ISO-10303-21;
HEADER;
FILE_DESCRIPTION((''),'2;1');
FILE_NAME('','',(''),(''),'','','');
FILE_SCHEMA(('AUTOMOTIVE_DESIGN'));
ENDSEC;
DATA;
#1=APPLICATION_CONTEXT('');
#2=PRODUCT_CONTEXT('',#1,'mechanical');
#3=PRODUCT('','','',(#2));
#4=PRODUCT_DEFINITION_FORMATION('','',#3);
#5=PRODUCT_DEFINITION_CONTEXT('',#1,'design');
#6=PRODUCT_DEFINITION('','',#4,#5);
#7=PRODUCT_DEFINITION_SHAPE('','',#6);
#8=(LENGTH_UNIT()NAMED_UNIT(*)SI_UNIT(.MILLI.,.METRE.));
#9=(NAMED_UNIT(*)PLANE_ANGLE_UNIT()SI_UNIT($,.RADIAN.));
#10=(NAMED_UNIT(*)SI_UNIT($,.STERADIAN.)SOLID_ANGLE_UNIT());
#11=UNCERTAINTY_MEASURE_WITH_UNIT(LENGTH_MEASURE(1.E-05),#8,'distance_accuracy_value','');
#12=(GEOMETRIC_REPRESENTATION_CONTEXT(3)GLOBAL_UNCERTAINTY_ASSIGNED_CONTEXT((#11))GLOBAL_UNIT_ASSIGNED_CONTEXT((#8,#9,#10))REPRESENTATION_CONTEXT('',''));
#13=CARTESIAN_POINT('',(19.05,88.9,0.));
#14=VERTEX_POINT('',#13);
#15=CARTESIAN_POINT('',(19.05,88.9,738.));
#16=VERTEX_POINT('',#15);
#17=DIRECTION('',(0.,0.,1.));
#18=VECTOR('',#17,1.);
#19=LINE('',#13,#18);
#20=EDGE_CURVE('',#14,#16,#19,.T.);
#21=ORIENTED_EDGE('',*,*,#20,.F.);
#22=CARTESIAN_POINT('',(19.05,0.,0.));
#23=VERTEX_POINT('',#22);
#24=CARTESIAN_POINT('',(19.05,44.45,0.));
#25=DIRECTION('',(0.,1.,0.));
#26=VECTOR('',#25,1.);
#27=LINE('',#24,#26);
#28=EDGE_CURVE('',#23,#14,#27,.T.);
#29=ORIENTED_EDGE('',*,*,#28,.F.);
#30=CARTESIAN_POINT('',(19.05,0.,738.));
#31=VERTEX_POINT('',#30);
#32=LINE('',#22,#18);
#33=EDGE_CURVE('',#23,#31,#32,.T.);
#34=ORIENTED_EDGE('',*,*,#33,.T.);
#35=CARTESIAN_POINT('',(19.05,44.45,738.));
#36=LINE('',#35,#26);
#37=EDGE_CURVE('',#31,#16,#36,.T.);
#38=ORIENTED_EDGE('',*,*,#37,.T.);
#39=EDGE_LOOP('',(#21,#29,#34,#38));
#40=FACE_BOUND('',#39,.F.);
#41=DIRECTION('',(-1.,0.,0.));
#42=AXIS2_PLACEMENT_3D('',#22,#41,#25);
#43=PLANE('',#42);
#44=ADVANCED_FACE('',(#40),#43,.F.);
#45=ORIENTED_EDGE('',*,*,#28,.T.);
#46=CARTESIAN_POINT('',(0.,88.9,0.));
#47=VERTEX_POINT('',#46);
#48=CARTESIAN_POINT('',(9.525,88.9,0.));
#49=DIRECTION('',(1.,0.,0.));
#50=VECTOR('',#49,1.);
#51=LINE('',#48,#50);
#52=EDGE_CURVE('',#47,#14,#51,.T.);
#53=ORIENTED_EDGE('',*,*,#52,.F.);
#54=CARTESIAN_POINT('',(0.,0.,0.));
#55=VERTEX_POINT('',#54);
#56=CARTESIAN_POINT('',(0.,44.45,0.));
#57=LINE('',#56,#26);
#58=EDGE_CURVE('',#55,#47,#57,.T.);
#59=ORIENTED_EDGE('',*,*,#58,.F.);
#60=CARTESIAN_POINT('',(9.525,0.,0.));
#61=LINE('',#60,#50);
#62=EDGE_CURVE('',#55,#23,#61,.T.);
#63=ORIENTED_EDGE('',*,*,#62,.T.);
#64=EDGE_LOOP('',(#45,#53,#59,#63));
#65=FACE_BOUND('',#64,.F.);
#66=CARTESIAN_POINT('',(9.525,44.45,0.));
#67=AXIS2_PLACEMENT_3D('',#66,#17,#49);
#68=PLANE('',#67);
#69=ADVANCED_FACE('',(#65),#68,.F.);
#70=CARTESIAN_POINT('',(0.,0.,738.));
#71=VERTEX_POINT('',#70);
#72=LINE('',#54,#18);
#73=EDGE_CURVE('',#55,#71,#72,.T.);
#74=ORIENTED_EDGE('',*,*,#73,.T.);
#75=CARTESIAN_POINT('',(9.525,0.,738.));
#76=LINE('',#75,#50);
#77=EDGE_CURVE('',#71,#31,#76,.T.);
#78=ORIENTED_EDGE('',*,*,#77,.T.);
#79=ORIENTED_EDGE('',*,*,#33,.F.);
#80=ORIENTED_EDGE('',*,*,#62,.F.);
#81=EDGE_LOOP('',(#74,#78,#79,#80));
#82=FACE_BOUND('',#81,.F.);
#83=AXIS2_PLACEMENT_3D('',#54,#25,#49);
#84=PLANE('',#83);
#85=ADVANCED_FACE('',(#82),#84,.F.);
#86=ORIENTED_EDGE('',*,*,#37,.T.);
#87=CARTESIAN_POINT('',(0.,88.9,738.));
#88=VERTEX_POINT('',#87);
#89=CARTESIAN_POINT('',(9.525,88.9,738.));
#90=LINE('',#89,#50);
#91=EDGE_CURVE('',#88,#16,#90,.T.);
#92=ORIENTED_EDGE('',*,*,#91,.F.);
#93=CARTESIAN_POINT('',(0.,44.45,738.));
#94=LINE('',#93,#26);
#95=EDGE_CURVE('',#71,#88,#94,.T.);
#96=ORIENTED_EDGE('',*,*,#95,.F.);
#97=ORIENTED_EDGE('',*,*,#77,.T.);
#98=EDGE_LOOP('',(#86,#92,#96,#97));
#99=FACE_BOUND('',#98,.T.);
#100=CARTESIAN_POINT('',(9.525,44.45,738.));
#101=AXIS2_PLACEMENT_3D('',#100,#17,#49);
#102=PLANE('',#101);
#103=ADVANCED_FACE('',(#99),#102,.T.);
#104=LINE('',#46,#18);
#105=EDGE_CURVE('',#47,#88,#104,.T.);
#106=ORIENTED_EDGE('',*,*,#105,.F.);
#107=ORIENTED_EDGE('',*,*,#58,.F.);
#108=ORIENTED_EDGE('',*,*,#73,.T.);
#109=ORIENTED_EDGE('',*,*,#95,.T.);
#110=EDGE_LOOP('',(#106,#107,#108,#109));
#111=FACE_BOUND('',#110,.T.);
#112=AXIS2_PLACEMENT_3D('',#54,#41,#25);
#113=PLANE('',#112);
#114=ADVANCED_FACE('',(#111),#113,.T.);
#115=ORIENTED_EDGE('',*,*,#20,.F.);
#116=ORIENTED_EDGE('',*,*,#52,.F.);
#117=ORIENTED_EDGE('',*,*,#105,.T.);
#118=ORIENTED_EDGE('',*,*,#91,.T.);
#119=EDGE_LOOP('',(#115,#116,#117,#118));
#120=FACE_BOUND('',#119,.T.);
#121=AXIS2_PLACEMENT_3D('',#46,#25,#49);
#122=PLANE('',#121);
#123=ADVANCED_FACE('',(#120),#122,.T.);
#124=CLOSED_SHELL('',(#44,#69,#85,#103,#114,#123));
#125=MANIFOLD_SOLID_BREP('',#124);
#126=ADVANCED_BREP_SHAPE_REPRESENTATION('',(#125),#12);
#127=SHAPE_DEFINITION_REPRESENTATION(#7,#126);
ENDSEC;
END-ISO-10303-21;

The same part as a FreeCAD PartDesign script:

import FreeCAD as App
import Part
import Sketcher
from FreeCAD import Vector
Q = App.Units.Quantity


def add_polygon(sketch, points):
    """Adds a closed chain of lines whose ends are joined by coincident constraints."""
    first, n = sketch.GeometryCount, len(points)
    for a, b in zip(points, points[1:] + points[:1]):
        sketch.addGeometry(Part.LineSegment(App.Vector(*a, 0), App.Vector(*b, 0)), False)
    for i in range(n):
        sketch.addConstraint(Sketcher.Constraint("Coincident", first + i, 2, first + (i + 1) % n, 1))

doc = App.newDocument("Part")
params = doc.addObject("Spreadsheet::Sheet", "Params")
for row, (alias, value) in enumerate([
    ("sketch1_height", "3.5 in"),
    ("sketch1_width", "0.75 in"),
    ("pad1_length", "738 mm"),
], start=1):
    params.set(f"A{row}", alias)
    params.set(f"B{row}", "=" + value)
    params.setAlias(f"B{row}", alias)

body = doc.addObject("PartDesign::Body", "Body")

# Sketch on XY plane
sketch1 = doc.addObject("Sketcher::SketchObject", "Sketch")
body.addObject(sketch1)
sketch1.AttachmentSupport = (doc.XY_Plane, [""])
sketch1.MapMode = "FlatFace"
add_polygon(sketch1, [(0, 89), (0, 0), (19, 0), (19, 89)])  # lines 0-3
sketch1.addConstraint(Sketcher.Constraint("Vertical", 0))
sketch1.addConstraint(Sketcher.Constraint("Horizontal", 1))
sketch1.addConstraint(Sketcher.Constraint("Vertical", 2))
sketch1.addConstraint(Sketcher.Constraint("Horizontal", 3))
sketch1.addConstraint(Sketcher.Constraint("Coincident", 0, 2, -1, 1))
sketch1.addConstraint(Sketcher.Constraint("DistanceY", 0, 2, 0, 1, Q("3.5 in")))
sketch1.addConstraint(Sketcher.Constraint("DistanceX", 1, 1, 1, 2, Q("0.75 in")))
sketch1.setExpression("Constraints[9]", "Params.sketch1_height")
sketch1.setExpression("Constraints[10]", "Params.sketch1_width")
pad1 = doc.addObject("PartDesign::Pad", "Pad")
body.addObject(pad1)
pad1.Profile = sketch1
pad1.setExpression("Length", "Params.pad1_length")

doc.recompute()
